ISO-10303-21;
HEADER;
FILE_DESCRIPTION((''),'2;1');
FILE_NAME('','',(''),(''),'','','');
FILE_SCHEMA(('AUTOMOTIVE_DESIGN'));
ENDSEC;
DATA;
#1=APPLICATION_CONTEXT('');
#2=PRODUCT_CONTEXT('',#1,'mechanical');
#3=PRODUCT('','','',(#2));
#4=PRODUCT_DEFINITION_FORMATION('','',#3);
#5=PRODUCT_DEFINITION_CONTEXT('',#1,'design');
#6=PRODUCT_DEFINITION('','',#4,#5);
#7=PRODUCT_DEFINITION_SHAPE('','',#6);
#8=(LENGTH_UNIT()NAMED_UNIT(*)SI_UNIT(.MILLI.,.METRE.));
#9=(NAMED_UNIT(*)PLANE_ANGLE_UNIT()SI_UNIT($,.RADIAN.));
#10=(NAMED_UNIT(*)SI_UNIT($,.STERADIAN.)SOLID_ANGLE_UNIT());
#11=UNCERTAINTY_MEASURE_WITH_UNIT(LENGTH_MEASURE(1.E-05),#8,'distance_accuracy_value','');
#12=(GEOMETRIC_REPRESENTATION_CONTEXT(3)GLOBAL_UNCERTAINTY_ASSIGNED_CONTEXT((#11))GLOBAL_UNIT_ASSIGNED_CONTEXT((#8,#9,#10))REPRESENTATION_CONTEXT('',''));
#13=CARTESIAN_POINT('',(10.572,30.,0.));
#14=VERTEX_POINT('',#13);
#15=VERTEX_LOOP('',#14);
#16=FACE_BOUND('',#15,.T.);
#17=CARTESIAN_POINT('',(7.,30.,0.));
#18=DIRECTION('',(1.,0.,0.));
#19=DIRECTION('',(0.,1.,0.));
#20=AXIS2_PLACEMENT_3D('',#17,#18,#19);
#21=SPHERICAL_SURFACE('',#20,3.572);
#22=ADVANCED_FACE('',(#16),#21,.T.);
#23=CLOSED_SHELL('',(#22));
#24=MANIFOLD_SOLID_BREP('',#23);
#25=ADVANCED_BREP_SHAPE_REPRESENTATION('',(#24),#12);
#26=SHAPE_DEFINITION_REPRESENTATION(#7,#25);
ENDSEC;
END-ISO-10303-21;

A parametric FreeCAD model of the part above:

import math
import FreeCAD as App
import Part
import Sketcher
Q = App.Units.Quantity

doc = App.newDocument("Part")
body = doc.addObject("PartDesign::Body", "Body")

sketch1 = body.newObject("Sketcher::SketchObject", "Sketch")
sketch1.AttachmentSupport = (doc.getObject("XY_Plane"), [""])
sketch1.MapMode = "FlatFace"
sketch1.addGeometry([
    Part.LineSegment(App.Vector(3.4, 30, 0), App.Vector(10.6, 30, 0)),
    Part.ArcOfCircle(Part.Circle(App.Vector(7, 30, 0), App.Vector(0, 0, 1), 3.6), math.radians(0), math.radians(180)),
], False)
sketch1.addGeometry(Part.LineSegment(App.Vector(10.6, 30, 0), App.Vector(3.4, 30, 0)), True)
sketch1.addConstraint([
    Sketcher.Constraint("Coincident", 0, 1, 1, 2),
    Sketcher.Constraint("Coincident", 1, 1, 0, 2),
    Sketcher.Constraint("Horizontal", 0),
    Sketcher.Constraint("Horizontal", 2),
    Sketcher.Constraint("Coincident", 2, 1, 1, 1),
    Sketcher.Constraint("Horizontal", 1, 3, 0, 1),
    Sketcher.Constraint("Equal", 0, 2),
    Sketcher.Constraint("DistanceX", -1, 1, 1, 3, Q("7 mm")),
    Sketcher.Constraint("DistanceY", -1, 1, 1, 3, Q("30 mm")),
    Sketcher.Constraint("Radius", 1, Q("3.572 mm")),
])
revolution = body.newObject("PartDesign::Revolution", "Revolution")
revolution.Profile = sketch1
revolution.ReferenceAxis = (sketch1, ["Axis0"])
revolution.Angle = 360

doc.recompute()
